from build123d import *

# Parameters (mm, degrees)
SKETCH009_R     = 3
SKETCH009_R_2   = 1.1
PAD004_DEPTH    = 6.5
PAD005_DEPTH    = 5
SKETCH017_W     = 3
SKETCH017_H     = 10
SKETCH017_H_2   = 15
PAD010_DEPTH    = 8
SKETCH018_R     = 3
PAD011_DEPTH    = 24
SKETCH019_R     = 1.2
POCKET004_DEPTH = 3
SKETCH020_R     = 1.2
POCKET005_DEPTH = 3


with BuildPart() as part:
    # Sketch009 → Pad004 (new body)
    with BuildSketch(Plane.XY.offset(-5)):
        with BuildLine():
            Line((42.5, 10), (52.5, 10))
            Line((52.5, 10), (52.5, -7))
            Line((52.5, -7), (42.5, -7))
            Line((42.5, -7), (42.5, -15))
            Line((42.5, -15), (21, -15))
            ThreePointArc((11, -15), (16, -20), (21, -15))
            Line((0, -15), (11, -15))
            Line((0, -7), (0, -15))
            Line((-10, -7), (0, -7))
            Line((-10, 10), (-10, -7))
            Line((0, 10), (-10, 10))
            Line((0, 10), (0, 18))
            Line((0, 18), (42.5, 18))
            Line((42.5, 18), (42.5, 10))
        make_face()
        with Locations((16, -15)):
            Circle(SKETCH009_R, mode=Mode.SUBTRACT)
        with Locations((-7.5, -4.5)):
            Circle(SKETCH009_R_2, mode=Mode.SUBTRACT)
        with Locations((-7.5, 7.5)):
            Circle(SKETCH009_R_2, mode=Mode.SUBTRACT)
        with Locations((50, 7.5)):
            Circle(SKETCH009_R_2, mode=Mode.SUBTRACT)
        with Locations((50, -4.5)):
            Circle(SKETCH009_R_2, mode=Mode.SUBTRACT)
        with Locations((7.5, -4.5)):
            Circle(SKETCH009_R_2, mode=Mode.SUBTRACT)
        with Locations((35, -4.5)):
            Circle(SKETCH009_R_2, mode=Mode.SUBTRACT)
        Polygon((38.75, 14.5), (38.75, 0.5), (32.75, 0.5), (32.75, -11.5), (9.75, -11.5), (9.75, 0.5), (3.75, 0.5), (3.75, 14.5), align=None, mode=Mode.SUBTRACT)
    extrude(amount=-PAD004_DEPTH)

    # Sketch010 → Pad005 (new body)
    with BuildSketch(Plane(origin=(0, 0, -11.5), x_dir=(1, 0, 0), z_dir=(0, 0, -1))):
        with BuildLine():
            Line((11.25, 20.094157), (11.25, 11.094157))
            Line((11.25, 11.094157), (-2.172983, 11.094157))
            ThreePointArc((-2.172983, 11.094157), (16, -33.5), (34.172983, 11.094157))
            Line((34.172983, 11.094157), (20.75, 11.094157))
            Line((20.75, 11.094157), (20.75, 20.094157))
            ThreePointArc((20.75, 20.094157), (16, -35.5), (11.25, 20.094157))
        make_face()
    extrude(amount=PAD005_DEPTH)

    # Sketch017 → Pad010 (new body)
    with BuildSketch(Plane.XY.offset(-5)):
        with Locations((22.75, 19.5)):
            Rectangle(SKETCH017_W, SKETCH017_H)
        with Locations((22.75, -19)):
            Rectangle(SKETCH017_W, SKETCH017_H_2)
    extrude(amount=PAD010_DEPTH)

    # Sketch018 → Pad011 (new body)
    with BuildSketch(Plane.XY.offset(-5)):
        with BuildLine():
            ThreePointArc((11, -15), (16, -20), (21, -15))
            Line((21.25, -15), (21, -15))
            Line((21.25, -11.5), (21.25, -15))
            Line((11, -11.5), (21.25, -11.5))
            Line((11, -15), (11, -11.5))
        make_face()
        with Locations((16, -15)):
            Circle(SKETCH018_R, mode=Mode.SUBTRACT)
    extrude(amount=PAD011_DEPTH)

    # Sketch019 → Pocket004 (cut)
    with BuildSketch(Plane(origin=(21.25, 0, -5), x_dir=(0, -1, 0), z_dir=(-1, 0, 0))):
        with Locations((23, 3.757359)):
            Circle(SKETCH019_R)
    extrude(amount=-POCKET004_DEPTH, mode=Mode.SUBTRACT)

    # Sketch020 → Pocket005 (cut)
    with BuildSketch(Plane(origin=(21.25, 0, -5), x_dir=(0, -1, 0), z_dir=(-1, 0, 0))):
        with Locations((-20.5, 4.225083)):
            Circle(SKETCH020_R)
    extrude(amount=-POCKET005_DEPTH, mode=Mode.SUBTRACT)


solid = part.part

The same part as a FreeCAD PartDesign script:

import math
import FreeCAD as App
import Part
import Sketcher
from FreeCAD import Vector
Q = App.Units.Quantity


def add_polygon(sketch, points):
    """Adds a closed chain of lines whose ends are joined by coincident constraints."""
    first, n = sketch.GeometryCount, len(points)
    for a, b in zip(points, points[1:] + points[:1]):
        sketch.addGeometry(Part.LineSegment(App.Vector(*a, 0), App.Vector(*b, 0)), False)
    for i in range(n):
        sketch.addConstraint(Sketcher.Constraint("Coincident", first + i, 2, first + (i + 1) % n, 1))

doc = App.newDocument("Part")
body = doc.addObject("PartDesign::Body", "Body")

# Sketch on XY plane
sketch1 = doc.addObject("Sketcher::SketchObject", "Sketch")
body.addObject(sketch1)
sketch1.AttachmentSupport = (doc.XY_Plane, [""])
sketch1.MapMode = "FlatFace"
sketch1.AttachmentOffset = App.Placement(Vector(0, 0, -5), App.Rotation())
sketch1.addGeometry(Part.LineSegment(Vector(52.5, 10, 0), Vector(42.5, 10, 0)), False)  # 0
sketch1.addGeometry(Part.LineSegment(Vector(42.5, 10, 0), Vector(42.5, 18, 0)), False)  # 1
sketch1.addGeometry(Part.LineSegment(Vector(42.5, 18, 0), Vector(0, 18, 0)), False)  # 2
sketch1.addGeometry(Part.LineSegment(Vector(0, 18, 0), Vector(0, 10, 0)), False)  # 3
sketch1.addGeometry(Part.LineSegment(Vector(0, 10, 0), Vector(-10, 10, 0)), False)  # 4
sketch1.addGeometry(Part.LineSegment(Vector(-10, 10, 0), Vector(-10, -7, 0)), False)  # 5
sketch1.addGeometry(Part.LineSegment(Vector(-10, -7, 0), Vector(0, -7, 0)), False)  # 6
sketch1.addGeometry(Part.LineSegment(Vector(0, -7, 0), Vector(0, -15, 0)), False)  # 7
sketch1.addGeometry(Part.LineSegment(Vector(0, -15, 0), Vector(11, -15, 0)), False)  # 8
sketch1.addGeometry(Part.ArcOfCircle(Part.Circle(Vector(16, -15, 0), Vector(0, 0, 1), 5), math.radians(180), math.radians(360)), False)  # 9
sketch1.addGeometry(Part.LineSegment(Vector(21, -15, 0), Vector(42.5, -15, 0)), False)  # 10
sketch1.addGeometry(Part.LineSegment(Vector(42.5, -15, 0), Vector(42.5, -7, 0)), False)  # 11
sketch1.addGeometry(Part.LineSegment(Vector(42.5, -7, 0), Vector(52.5, -7, 0)), False)  # 12
sketch1.addGeometry(Part.LineSegment(Vector(52.5, -7, 0), Vector(52.5, 10, 0)), False)  # 13
sketch1.addGeometry(Part.Circle(Vector(50, -4.5, 0), Vector(0, 0, 1), 1.1), False)  # 14
sketch1.addGeometry(Part.Circle(Vector(35, -4.5, 0), Vector(0, 0, 1), 1.1), False)  # 15
sketch1.addGeometry(Part.Circle(Vector(16, -15, 0), Vector(0, 0, 1), 3), False)  # 16
sketch1.addGeometry(Part.Circle(Vector(7.5, -4.5, 0), Vector(0, 0, 1), 1.1), False)  # 17
sketch1.addGeometry(Part.Circle(Vector(-7.5, -4.5, 0), Vector(0, 0, 1), 1.1), False)  # 18
sketch1.addGeometry(Part.Circle(Vector(50, 7.5, 0), Vector(0, 0, 1), 1.1), False)  # 19
add_polygon(sketch1, [(38.8, 14.5), (38.8, 0.5), (32.8, 0.5), (32.8, -11.5), (9.8, -11.5), (9.8, 0.5), (3.8, 0.5), (3.8, 14.5)])  # lines 20-27
sketch1.addGeometry(Part.Circle(Vector(-7.5, 7.5, 0), Vector(0, 0, 1), 1.1), False)  # 28
sketch1.addConstraint(Sketcher.Constraint("Coincident", 0, 2, 1, 1))
sketch1.addConstraint(Sketcher.Constraint("Coincident", 1, 2, 2, 1))
sketch1.addConstraint(Sketcher.Constraint("Coincident", 2, 2, 3, 1))
sketch1.addConstraint(Sketcher.Constraint("Coincident", 3, 2, 4, 1))
sketch1.addConstraint(Sketcher.Constraint("Coincident", 4, 2, 5, 1))
sketch1.addConstraint(Sketcher.Constraint("Coincident", 5, 2, 6, 1))
sketch1.addConstraint(Sketcher.Constraint("Coincident", 6, 2, 7, 1))
sketch1.addConstraint(Sketcher.Constraint("Coincident", 7, 2, 8, 1))
sketch1.addConstraint(Sketcher.Constraint("Coincident", 8, 2, 9, 1))
sketch1.addConstraint(Sketcher.Constraint("Coincident", 9, 2, 10, 1))
sketch1.addConstraint(Sketcher.Constraint("Coincident", 10, 2, 11, 1))
sketch1.addConstraint(Sketcher.Constraint("Coincident", 11, 2, 12, 1))
sketch1.addConstraint(Sketcher.Constraint("Coincident", 12, 2, 13, 1))
sketch1.addConstraint(Sketcher.Constraint("Coincident", 13, 2, 0, 1))
sketch1.addConstraint(Sketcher.Constraint("Horizontal", 0))
sketch1.addConstraint(Sketcher.Constraint("Vertical", 1))
sketch1.addConstraint(Sketcher.Constraint("Horizontal", 2))
sketch1.addConstraint(Sketcher.Constraint("Vertical", 3))
sketch1.addConstraint(Sketcher.Constraint("Horizontal", 4))
sketch1.addConstraint(Sketcher.Constraint("Vertical", 5))
sketch1.addConstraint(Sketcher.Constraint("Horizontal", 6))
sketch1.addConstraint(Sketcher.Constraint("Vertical", 7))
sketch1.addConstraint(Sketcher.Constraint("Horizontal", 8))
sketch1.addConstraint(Sketcher.Constraint("Horizontal", 10))
sketch1.addConstraint(Sketcher.Constraint("Vertical", 11))
sketch1.addConstraint(Sketcher.Constraint("Horizontal", 12))
sketch1.addConstraint(Sketcher.Constraint("Vertical", 13))
sketch1.addConstraint(Sketcher.Constraint("Vertical", 20))
sketch1.addConstraint(Sketcher.Constraint("Horizontal", 21))
sketch1.addConstraint(Sketcher.Constraint("Vertical", 22))
sketch1.addConstraint(Sketcher.Constraint("Horizontal", 23))
sketch1.addConstraint(Sketcher.Constraint("Vertical", 24))
sketch1.addConstraint(Sketcher.Constraint("Horizontal", 25))
sketch1.addConstraint(Sketcher.Constraint("Vertical", 26))
sketch1.addConstraint(Sketcher.Constraint("Horizontal", 27))
sketch1.addConstraint(Sketcher.Constraint("Coincident", 16, 3, 9, 3))
sketch1.addConstraint(Sketcher.Constraint("Equal", 14, 15))
sketch1.addConstraint(Sketcher.Constraint("Equal", 15, 17))
sketch1.addConstraint(Sketcher.Constraint("Equal", 17, 18))
sketch1.addConstraint(Sketcher.Constraint("Equal", 18, 19))
sketch1.addConstraint(Sketcher.Constraint("Equal", 19, 28))
sketch1.addConstraint(Sketcher.Constraint("Symmetric", 17, 3, 18, 3, -2))
sketch1.addConstraint(Sketcher.Constraint("PointOnObject", 2, 2, -2))
sketch1.addConstraint(Sketcher.Constraint("PointOnObject", 6, 2, -2))
sketch1.addConstraint(Sketcher.Constraint("Horizontal", 14, 3, 15, 3))
sketch1.addConstraint(Sketcher.Constraint("Horizontal", 15, 3, 17, 3))
sketch1.addConstraint(Sketcher.Constraint("Horizontal", 19, 3, 28, 3))
sketch1.addConstraint(Sketcher.Constraint("Horizontal", 0, 2, 3, 2))
sketch1.addConstraint(Sketcher.Constraint("Horizontal", 16, 3, 7, 2))
sketch1.addConstraint(Sketcher.Constraint("Horizontal", 8, 2, 9, 2))
sketch1.addConstraint(Sketcher.Constraint("Horizontal", 6, 2, 11, 2))
sketch1.addConstraint(Sketcher.Constraint("Horizontal", 21, 2, 24, 2))
sketch1.addConstraint(Sketcher.Constraint("Vertical", 14, 3, 19, 3))
sketch1.addConstraint(Sketcher.Constraint("Vertical", 18, 3, 28, 3))
sketch1.addConstraint(Sketcher.Constraint("Vertical", 1, 2, 10, 2))
sketch1.addConstraint(Sketcher.Constraint("Equal", 0, 4))
sketch1.addConstraint(Sketcher.Constraint("Equal", 21, 25))
sketch1.addConstraint(Sketcher.Constraint("Equal", 3, 7))
sketch1.addConstraint(Sketcher.Constraint("Diameter", 16, Q("6 mm")))
sketch1.addConstraint(Sketcher.Constraint("Radius", 9, Q("5 mm")))
sketch1.addConstraint(Sketcher.Constraint("Diameter", 14, Q("2.2 mm")))
sketch1.addConstraint(Sketcher.Constraint("DistanceX", 0, 2, 0, 1, Q("10 mm")))
sketch1.addConstraint(Sketcher.Constraint("DistanceX", 8, 1, 8, 2, Q("11 mm")))
sketch1.addConstraint(Sketcher.Constraint("DistanceX", 21, 2, 21, 1, Q("6 mm")))
sketch1.addConstraint(Sketcher.Constraint("DistanceX", 23, 2, 23, 1, Q("23 mm")))
sketch1.addConstraint(Sketcher.Constraint("DistanceY", 1, 1, 1, 2, Q("8 mm")))
sketch1.addConstraint(Sketcher.Constraint("DistanceY", 5, 2, 5, 1, Q("17 mm")))
sketch1.addConstraint(Sketcher.Constraint("DistanceY", 20, 2, 20, 1, Q("14 mm")))
sketch1.addConstraint(Sketcher.Constraint("DistanceY", 22, 2, 22, 1, Q("12 mm")))
sketch1.addConstraint(Sketcher.Constraint("DistanceX", 2, 2, 2, 1, Q("42.5 mm")))
sketch1.addConstraint(Sketcher.Constraint("DistanceY", 9, 3, -1, 1, Q("15 mm")))
sketch1.addConstraint(Sketcher.Constraint("DistanceX", -1, 1, 14, 3, Q("50 mm")))
sketch1.addConstraint(Sketcher.Constraint("DistanceX", -1, 1, 15, 3, Q("35 mm")))
sketch1.addConstraint(Sketcher.Constraint("DistanceX", 18, 3, 17, 3, Q("15 mm")))
sketch1.addConstraint(Sketcher.Constraint("DistanceY", 14, 3, 19, 3, Q("12 mm")))
sketch1.addConstraint(Sketcher.Constraint("DistanceY", 15, 3, 20, 2, Q("5 mm")))
sketch1.addConstraint(Sketcher.Constraint("DistanceY", 14, 3, -1, 1, Q("4.5 mm")))
sketch1.addConstraint(Sketcher.Constraint("DistanceX", -1, 1, 20, 2, Q("38.75 mm")))
pad1 = doc.addObject("PartDesign::Pad", "Pad")
body.addObject(pad1)
pad1.Profile = sketch1
pad1.Length = 6.5
pad1.Reversed = True

# Sketch on XY plane
sketch2 = doc.addObject("Sketcher::SketchObject", "Sketch001")
body.addObject(sketch2)
sketch2.AttachmentSupport = (doc.XY_Plane, [""])
sketch2.MapMode = "FlatFace"
sketch2.AttachmentOffset = App.Placement(Vector(0, 0, -11.5), App.Rotation())
sketch2.addGeometry(Part.LineSegment(Vector(11, -11, 0), Vector(11, -20, 0)), False)
sketch2.addGeometry(Part.ArcOfCircle(Part.Circle(Vector(16, 7, 0), Vector(0, 0, 1), 28), math.radians(-80), math.radians(260)), False)
sketch2.addGeometry(Part.LineSegment(Vector(21, -20, 0), Vector(21, -11, 0)), False)
sketch2.addGeometry(Part.LineSegment(Vector(21, -11, 0), Vector(34, -11, 0)), False)
sketch2.addGeometry(Part.ArcOfCircle(Part.Circle(Vector(16, 8, 0), Vector(0, 0, 1), 26), math.radians(-46), math.radians(226)), False)
sketch2.addGeometry(Part.LineSegment(Vector(-2, -11, 0), Vector(11, -11, 0)), False)
sketch2.addConstraint(Sketcher.Constraint("Coincident", 0, 2, 1, 2))
sketch2.addConstraint(Sketcher.Constraint("Coincident", 1, 1, 2, 1))
sketch2.addConstraint(Sketcher.Constraint("Coincident", 2, 2, 3, 1))
sketch2.addConstraint(Sketcher.Constraint("Coincident", 3, 2, 4, 1))
sketch2.addConstraint(Sketcher.Constraint("Coincident", 4, 2, 5, 1))
sketch2.addConstraint(Sketcher.Constraint("Coincident", 5, 2, 0, 1))
sketch2.addConstraint(Sketcher.Constraint("Vertical", 0))
sketch2.addConstraint(Sketcher.Constraint("Vertical", 2))
sketch2.addConstraint(Sketcher.Constraint("Horizontal", 3))
sketch2.addConstraint(Sketcher.Constraint("Horizontal", 5))
sketch2.addConstraint(Sketcher.Constraint("Coincident", 4, 3, 1, 3))
sketch2.addConstraint(Sketcher.Constraint("Horizontal", 0, 2, 1, 1))
sketch2.addConstraint(Sketcher.Constraint("Horizontal", 3, 2, 4, 2))
sketch2.addConstraint(Sketcher.Constraint("Radius", 1, Q("28 mm")))
sketch2.addConstraint(Sketcher.Constraint("Radius", 4, Q("26 mm")))
sketch2.addConstraint(Sketcher.Constraint("DistanceY", 0, 2, 0, 1, Q("9 mm")))
sketch2.addConstraint(Sketcher.Constraint("DistanceX", -1, 1, 1, 3, Q("16 mm")))
sketch2.addConstraint(Sketcher.Constraint("DistanceY", -1, 1, 1, 3, Q("7.5 mm")))
sketch2.addConstraint(Sketcher.Constraint("DistanceX", 0, 2, 1, 1, Q("9.5 mm")))
pad2 = doc.addObject("PartDesign::Pad", "Pad001")
body.addObject(pad2)
pad2.Profile = sketch2
pad2.Length = 5
pad2.Reversed = True

# Sketch on XY plane
sketch3 = doc.addObject("Sketcher::SketchObject", "Sketch002")
body.addObject(sketch3)
sketch3.AttachmentSupport = (doc.XY_Plane, [""])
sketch3.MapMode = "FlatFace"
sketch3.AttachmentOffset = App.Placement(Vector(0, 0, -5), App.Rotation())
add_polygon(sketch3, [(21.2, 24.5), (21.2, 14.5), (24.2, 14.5), (24.2, 24.5)])  # lines 0-3
add_polygon(sketch3, [(21.2, -11.5), (21.2, -26.5), (24.2, -26.5), (24.2, -11.5)])  # lines 4-7
sketch3.addConstraint(Sketcher.Constraint("Vertical", 0))
sketch3.addConstraint(Sketcher.Constraint("Horizontal", 1))
sketch3.addConstraint(Sketcher.Constraint("Vertical", 2))
sketch3.addConstraint(Sketcher.Constraint("Horizontal", 3))
sketch3.addConstraint(Sketcher.Constraint("Vertical", 4))
sketch3.addConstraint(Sketcher.Constraint("Horizontal", 5))
sketch3.addConstraint(Sketcher.Constraint("Vertical", 6))
sketch3.addConstraint(Sketcher.Constraint("Horizontal", 7))
sketch3.addConstraint(Sketcher.Constraint("Vertical", 3, 2, 4, 2))
sketch3.addConstraint(Sketcher.Constraint("Vertical", 2, 2, 5, 2))
sketch3.addConstraint(Sketcher.Constraint("DistanceX", 1, 1, 1, 2, Q("3 mm")))
sketch3.addConstraint(Sketcher.Constraint("DistanceY", 0, 2, 0, 1, Q("10 mm")))
sketch3.addConstraint(Sketcher.Constraint("DistanceY", 4, 2, 4, 1, Q("15 mm")))
sketch3.addConstraint(Sketcher.Constraint("DistanceY", 4, 2, 0, 2, Q("41 mm")))
sketch3.addConstraint(Sketcher.Constraint("DistanceY", -1, 1, 0, 2, Q("14.5 mm")))
sketch3.addConstraint(Sketcher.Constraint("DistanceX", -1, 1, 0, 2, Q("21.25 mm")))
pad3 = doc.addObject("PartDesign::Pad", "Pad002")
body.addObject(pad3)
pad3.Profile = sketch3
pad3.Length = 8

# Sketch on XY plane
sketch4 = doc.addObject("Sketcher::SketchObject", "Sketch003")
body.addObject(sketch4)
sketch4.AttachmentSupport = (doc.XY_Plane, [""])
sketch4.MapMode = "FlatFace"
sketch4.AttachmentOffset = App.Placement(Vector(0, 0, -5), App.Rotation())
sketch4.addGeometry(Part.ArcOfCircle(Part.Circle(Vector(16, -15, 0), Vector(0, 0, 1), 5), math.radians(180), math.radians(360)), False)
sketch4.addGeometry(Part.LineSegment(Vector(21, -15, 0), Vector(21.25, -15, 0)), False)
sketch4.addGeometry(Part.LineSegment(Vector(21.25, -15, 0), Vector(21.25, -11.5, 0)), False)
sketch4.addGeometry(Part.LineSegment(Vector(21.25, -11.5, 0), Vector(11, -11.5, 0)), False)
sketch4.addGeometry(Part.LineSegment(Vector(11, -11.5, 0), Vector(11, -15, 0)), False)
sketch4.addGeometry(Part.Circle(Vector(16, -15, 0), Vector(0, 0, 1), 3), False)
sketch4.addConstraint(Sketcher.Constraint("Coincident", 0, 2, 1, 1))
sketch4.addConstraint(Sketcher.Constraint("Coincident", 1, 2, 2, 1))
sketch4.addConstraint(Sketcher.Constraint("Coincident", 2, 2, 3, 1))
sketch4.addConstraint(Sketcher.Constraint("Coincident", 3, 2, 4, 1))
sketch4.addConstraint(Sketcher.Constraint("Tangent", 4, 2, 0, 1))
sketch4.addConstraint(Sketcher.Constraint("Horizontal", 1))
sketch4.addConstraint(Sketcher.Constraint("Vertical", 2))
sketch4.addConstraint(Sketcher.Constraint("Horizontal", 3))
sketch4.addConstraint(Sketcher.Constraint("Vertical", 4))
sketch4.addConstraint(Sketcher.Constraint("Coincident", 5, 3, 0, 3))
sketch4.addConstraint(Sketcher.Constraint("Horizontal", 5, 3, 0, 2))
sketch4.addConstraint(Sketcher.Constraint("Diameter", 5, Q("6 mm")))
sketch4.addConstraint(Sketcher.Constraint("Radius", 0, Q("5 mm")))
sketch4.addConstraint(Sketcher.Constraint("DistanceY", 2, 1, 2, 2, Q("3.5 mm")))
sketch4.addConstraint(Sketcher.Constraint("DistanceX", -1, 1, 0, 3, Q("16 mm")))
sketch4.addConstraint(Sketcher.Constraint("DistanceY", 0, 3, -1, 1, Q("15 mm")))
sketch4.addConstraint(Sketcher.Constraint("DistanceX", 1, 1, 1, 2, Q("0.25 mm")))
pad4 = doc.addObject("PartDesign::Pad", "Pad003")
body.addObject(pad4)
pad4.Profile = sketch4
pad4.Length = 24

# Sketch on YZ plane
sketch5 = doc.addObject("Sketcher::SketchObject", "Sketch004")
body.addObject(sketch5)
sketch5.AttachmentSupport = (doc.YZ_Plane, [""])
sketch5.MapMode = "FlatFace"
sketch5.AttachmentOffset = App.Placement(Vector(0, 0, 21.25), App.Rotation())
sketch5.addGeometry(Part.Circle(Vector(-23, -1.2, 0), Vector(0, 0, 1), 1.2), False)
sketch5.addConstraint(Sketcher.Constraint("Diameter", 0, Q("2.4 mm")))
sketch5.addConstraint(Sketcher.Constraint("DistanceX", 0, 3, -1, 1, Q("23 mm")))
sketch5.addConstraint(Sketcher.Constraint("DistanceY", 0, 3, -1, 1, Q("1.242641 mm")))
pocket1 = doc.addObject("PartDesign::Pocket", "Pocket")
body.addObject(pocket1)
pocket1.Profile = sketch5
pocket1.Length = 3
pocket1.Reversed = True

# Sketch on YZ plane
sketch6 = doc.addObject("Sketcher::SketchObject", "Sketch005")
body.addObject(sketch6)
sketch6.AttachmentSupport = (doc.YZ_Plane, [""])
sketch6.MapMode = "FlatFace"
sketch6.AttachmentOffset = App.Placement(Vector(0, 0, 21.25), App.Rotation())
sketch6.addGeometry(Part.Circle(Vector(20.5, -0.8, 0), Vector(0, 0, 1), 1.2), False)
sketch6.addConstraint(Sketcher.Constraint("Diameter", 0, Q("2.4 mm")))
sketch6.addConstraint(Sketcher.Constraint("DistanceX", -1, 1, 0, 3, Q("20.5 mm")))
sketch6.addConstraint(Sketcher.Constraint("DistanceY", 0, 3, -1, 1, Q("0.774917 mm")))
pocket2 = doc.addObject("PartDesign::Pocket", "Pocket001")
body.addObject(pocket2)
pocket2.Profile = sketch6
pocket2.Length = 3
pocket2.Reversed = True

doc.recompute()
